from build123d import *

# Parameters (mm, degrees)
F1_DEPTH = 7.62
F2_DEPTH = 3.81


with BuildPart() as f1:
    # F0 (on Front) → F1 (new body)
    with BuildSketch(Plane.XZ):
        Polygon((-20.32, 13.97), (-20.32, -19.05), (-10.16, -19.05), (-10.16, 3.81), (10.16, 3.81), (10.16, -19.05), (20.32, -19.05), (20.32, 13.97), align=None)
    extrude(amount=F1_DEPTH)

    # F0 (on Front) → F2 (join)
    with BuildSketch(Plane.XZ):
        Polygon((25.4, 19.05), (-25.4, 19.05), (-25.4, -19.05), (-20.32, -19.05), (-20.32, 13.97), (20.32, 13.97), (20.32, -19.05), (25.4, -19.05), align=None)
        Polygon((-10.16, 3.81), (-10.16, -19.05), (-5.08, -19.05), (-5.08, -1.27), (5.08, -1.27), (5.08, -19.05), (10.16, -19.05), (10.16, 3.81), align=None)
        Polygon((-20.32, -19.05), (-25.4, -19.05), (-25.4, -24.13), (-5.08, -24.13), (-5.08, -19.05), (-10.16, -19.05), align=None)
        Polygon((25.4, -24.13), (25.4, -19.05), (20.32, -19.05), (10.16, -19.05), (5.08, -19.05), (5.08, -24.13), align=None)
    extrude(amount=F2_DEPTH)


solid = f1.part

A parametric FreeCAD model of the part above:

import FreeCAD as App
import Part
import Sketcher

V = App.Vector
Q = App.Units.Quantity

doc = App.newDocument("Part")
body = doc.addObject("PartDesign::Body", "Body")

sketch1 = body.newObject("Sketcher::SketchObject", "Sketch")
sketch1.AttachmentSupport = (doc.getObject("XZ_Plane"), [""])
sketch1.MapMode = "FlatFace"
sketch1.addGeometry(Part.LineSegment(V(-20, 14, 0), V(-20, -19, 0)), False)
sketch1.addGeometry(Part.LineSegment(V(-20, -19, 0), V(-10, -19, 0)), False)
sketch1.addGeometry(Part.LineSegment(V(-10, -19, 0), V(-10, 4, 0)), False)
sketch1.addGeometry(Part.LineSegment(V(-10, 4, 0), V(10, 4, 0)), False)
sketch1.addGeometry(Part.LineSegment(V(10, 4, 0), V(10, -19, 0)), False)
sketch1.addGeometry(Part.LineSegment(V(10, -19, 0), V(20, -19, 0)), False)
sketch1.addGeometry(Part.LineSegment(V(20, -19, 0), V(20, 14, 0)), False)
sketch1.addGeometry(Part.LineSegment(V(20, 14, 0), V(-20, 14, 0)), False)
sketch1.addConstraint(Sketcher.Constraint("Coincident", 0, 2, 1, 1))
sketch1.addConstraint(Sketcher.Constraint("Coincident", 1, 2, 2, 1))
sketch1.addConstraint(Sketcher.Constraint("Coincident", 2, 2, 3, 1))
sketch1.addConstraint(Sketcher.Constraint("Coincident", 3, 2, 4, 1))
sketch1.addConstraint(Sketcher.Constraint("Coincident", 4, 2, 5, 1))
sketch1.addConstraint(Sketcher.Constraint("Coincident", 5, 2, 6, 1))
sketch1.addConstraint(Sketcher.Constraint("Coincident", 6, 2, 7, 1))
sketch1.addConstraint(Sketcher.Constraint("Coincident", 7, 2, 0, 1))
sketch1.addConstraint(Sketcher.Constraint("Vertical", 0))
sketch1.addConstraint(Sketcher.Constraint("Horizontal", 1))
sketch1.addConstraint(Sketcher.Constraint("Vertical", 2))
sketch1.addConstraint(Sketcher.Constraint("Horizontal", 3))
sketch1.addConstraint(Sketcher.Constraint("Vertical", 4))
sketch1.addConstraint(Sketcher.Constraint("Horizontal", 5))
sketch1.addConstraint(Sketcher.Constraint("Vertical", 6))
sketch1.addConstraint(Sketcher.Constraint("Horizontal", 7))
sketch1.addConstraint(Sketcher.Constraint("Symmetric", 1, 2, 4, 2, -2))
sketch1.addConstraint(Sketcher.Constraint("Equal", 1, 5))
sketch1.addConstraint(Sketcher.Constraint("DistanceX", 1, 1, 1, 2, Q("0.4 in")))
sketch1.addConstraint(Sketcher.Constraint("DistanceX", 3, 1, 3, 2, Q("0.8 in")))
sketch1.addConstraint(Sketcher.Constraint("DistanceY", 0, 2, 0, 1, Q("1.3 in")))
sketch1.addConstraint(Sketcher.Constraint("DistanceY", 2, 1, 2, 2, Q("0.9 in")))
sketch1.addConstraint(Sketcher.Constraint("DistanceY", 0, 2, -1, 1, Q("0.75 in")))
pad1 = body.newObject("PartDesign::Pad", "Pad")
pad1.Profile = sketch1
pad1.Length = Q("0.3 in")

sketch2 = body.newObject("Sketcher::SketchObject", "Sketch001")
sketch2.AttachmentSupport = (doc.getObject("XZ_Plane"), [""])
sketch2.MapMode = "FlatFace"
sketch2.addGeometry(Part.LineSegment(V(25, 19, 0), V(-25, 19, 0)), False)
sketch2.addGeometry(Part.LineSegment(V(-25, 19, 0), V(-25, -24, 0)), False)
sketch2.addGeometry(Part.LineSegment(V(-25, -24, 0), V(-5, -24, 0)), False)
sketch2.addGeometry(Part.LineSegment(V(-5, -24, 0), V(-5, -1, 0)), False)
sketch2.addGeometry(Part.LineSegment(V(-5, -1, 0), V(5, -1, 0)), False)
sketch2.addGeometry(Part.LineSegment(V(5, -1, 0), V(5, -24, 0)), False)
sketch2.addGeometry(Part.LineSegment(V(5, -24, 0), V(25, -24, 0)), False)
sketch2.addGeometry(Part.LineSegment(V(25, -24, 0), V(25, 19, 0)), False)
sketch2.addGeometry(Part.LineSegment(V(10, -19, 0), V(10, 4, 0)), False)
sketch2.addGeometry(Part.LineSegment(V(10, 4, 0), V(-10, 4, 0)), False)
sketch2.addGeometry(Part.LineSegment(V(-10, 4, 0), V(-10, -19, 0)), False)
sketch2.addGeometry(Part.LineSegment(V(-10, -19, 0), V(-20, -19, 0)), False)
sketch2.addGeometry(Part.LineSegment(V(-20, -19, 0), V(-20, 14, 0)), False)
sketch2.addGeometry(Part.LineSegment(V(-20, 14, 0), V(20, 14, 0)), False)
sketch2.addGeometry(Part.LineSegment(V(20, 14, 0), V(20, -19, 0)), False)
sketch2.addGeometry(Part.LineSegment(V(20, -19, 0), V(10, -19, 0)), False)
sketch2.addConstraint(Sketcher.Constraint("Coincident", 0, 2, 1, 1))
sketch2.addConstraint(Sketcher.Constraint("Coincident", 1, 2, 2, 1))
sketch2.addConstraint(Sketcher.Constraint("Coincident", 2, 2, 3, 1))
sketch2.addConstraint(Sketcher.Constraint("Coincident", 3, 2, 4, 1))
sketch2.addConstraint(Sketcher.Constraint("Coincident", 4, 2, 5, 1))
sketch2.addConstraint(Sketcher.Constraint("Coincident", 5, 2, 6, 1))
sketch2.addConstraint(Sketcher.Constraint("Coincident", 6, 2, 7, 1))
sketch2.addConstraint(Sketcher.Constraint("Coincident", 7, 2, 0, 1))
sketch2.addConstraint(Sketcher.Constraint("Coincident", 8, 2, 9, 1))
sketch2.addConstraint(Sketcher.Constraint("Coincident", 9, 2, 10, 1))
sketch2.addConstraint(Sketcher.Constraint("Coincident", 10, 2, 11, 1))
sketch2.addConstraint(Sketcher.Constraint("Coincident", 11, 2, 12, 1))
sketch2.addConstraint(Sketcher.Constraint("Coincident", 12, 2, 13, 1))
sketch2.addConstraint(Sketcher.Constraint("Coincident", 13, 2, 14, 1))
sketch2.addConstraint(Sketcher.Constraint("Coincident", 14, 2, 15, 1))
sketch2.addConstraint(Sketcher.Constraint("Coincident", 15, 2, 8, 1))
sketch2.addConstraint(Sketcher.Constraint("Horizontal", 0))
sketch2.addConstraint(Sketcher.Constraint("Vertical", 1))
sketch2.addConstraint(Sketcher.Constraint("Horizontal", 2))
sketch2.addConstraint(Sketcher.Constraint("Vertical", 3))
sketch2.addConstraint(Sketcher.Constraint("Horizontal", 4))
sketch2.addConstraint(Sketcher.Constraint("Vertical", 5))
sketch2.addConstraint(Sketcher.Constraint("Horizontal", 6))
sketch2.addConstraint(Sketcher.Constraint("Vertical", 7))
sketch2.addConstraint(Sketcher.Constraint("Vertical", 8))
sketch2.addConstraint(Sketcher.Constraint("Horizontal", 9))
sketch2.addConstraint(Sketcher.Constraint("Vertical", 10))
sketch2.addConstraint(Sketcher.Constraint("Horizontal", 11))
sketch2.addConstraint(Sketcher.Constraint("Vertical", 12))
sketch2.addConstraint(Sketcher.Constraint("Horizontal", 13))
sketch2.addConstraint(Sketcher.Constraint("Vertical", 14))
sketch2.addConstraint(Sketcher.Constraint("Horizontal", 15))
sketch2.addConstraint(Sketcher.Constraint("Symmetric", 2, 2, 5, 2, -2))
sketch2.addConstraint(Sketcher.Constraint("Symmetric", 11, 2, 14, 2, -2))
sketch2.addConstraint(Sketcher.Constraint("Equal", 2, 6))
sketch2.addConstraint(Sketcher.Constraint("Equal", 6, 9))
sketch2.addConstraint(Sketcher.Constraint("Equal", 4, 11))
sketch2.addConstraint(Sketcher.Constraint("Equal", 11, 15))
sketch2.addConstraint(Sketcher.Constraint("Equal", 5, 8))
sketch2.addConstraint(Sketcher.Constraint("DistanceX", 0, 2, 0, 1, Q("2 in")))
sketch2.addConstraint(Sketcher.Constraint("DistanceX", 2, 1, 2, 2, Q("0.8 in")))
sketch2.addConstraint(Sketcher.Constraint("DistanceY", 1, 2, 1, 1, Q("1.7 in")))
sketch2.addConstraint(Sketcher.Constraint("DistanceY", 3, 1, 3, 2, Q("0.9 in")))
sketch2.addConstraint(Sketcher.Constraint("DistanceY", 12, 1, 12, 2, Q("1.3 in")))
sketch2.addConstraint(Sketcher.Constraint("DistanceY", 4, 2, 8, 2, Q("0.2 in")))
sketch2.addConstraint(Sketcher.Constraint("DistanceY", -1, 1, 0, 2, Q("0.75 in")))
pad2 = body.newObject("PartDesign::Pad", "Pad001")
pad2.Profile = sketch2
pad2.Length = Q("0.15 in")

doc.recompute()
